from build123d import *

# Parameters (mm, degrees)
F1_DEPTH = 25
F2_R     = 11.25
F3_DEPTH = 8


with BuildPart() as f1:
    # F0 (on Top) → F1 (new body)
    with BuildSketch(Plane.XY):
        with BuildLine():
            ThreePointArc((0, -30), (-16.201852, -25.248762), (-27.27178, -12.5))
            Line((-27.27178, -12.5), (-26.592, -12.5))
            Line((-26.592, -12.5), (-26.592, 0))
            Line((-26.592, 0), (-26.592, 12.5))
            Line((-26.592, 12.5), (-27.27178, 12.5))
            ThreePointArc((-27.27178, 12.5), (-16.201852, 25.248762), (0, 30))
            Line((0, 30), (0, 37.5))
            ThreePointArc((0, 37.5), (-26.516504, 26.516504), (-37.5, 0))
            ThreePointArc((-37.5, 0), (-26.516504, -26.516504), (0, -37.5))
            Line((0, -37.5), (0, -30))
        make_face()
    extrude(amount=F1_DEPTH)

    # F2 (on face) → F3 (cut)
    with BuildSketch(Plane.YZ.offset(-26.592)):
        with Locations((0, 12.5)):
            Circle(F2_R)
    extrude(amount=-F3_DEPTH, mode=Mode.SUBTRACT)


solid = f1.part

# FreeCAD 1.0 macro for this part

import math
import FreeCAD as App
import Part
import Sketcher

doc = App.newDocument("Part")
body = doc.addObject("PartDesign::Body", "Body")

sketch1 = body.newObject("Sketcher::SketchObject", "Sketch")
sketch1.AttachmentSupport = (doc.getObject("XY_Plane"), [""])
sketch1.MapMode = "FlatFace"
sketch1.addGeometry([
    Part.ArcOfCircle(Part.Circle(App.Vector(0, 0, 0), App.Vector(0, 0, 1), 30), math.radians(-155), math.radians(-90)),
    Part.LineSegment(App.Vector(-27.3, -12.5, 0), App.Vector(-26.6, -12.5, 0)),
    Part.LineSegment(App.Vector(-26.6, -12.5, 0), App.Vector(-26.6, 12.5, 0)),
    Part.LineSegment(App.Vector(-26.6, 12.5, 0), App.Vector(-27.3, 12.5, 0)),
    Part.ArcOfCircle(Part.Circle(App.Vector(0, 0, 0), App.Vector(0, 0, 1), 30), math.radians(90), math.radians(155)),
    Part.LineSegment(App.Vector(0, 30, 0), App.Vector(0, 37.5, 0)),
    Part.ArcOfCircle(Part.Circle(App.Vector(0, 0, 0), App.Vector(0, 0, 1), 37.5), math.radians(90), math.radians(180)),
    Part.ArcOfCircle(Part.Circle(App.Vector(0, 0, 0), App.Vector(0, 0, 1), 37.5), math.radians(-180), math.radians(-90)),
    Part.LineSegment(App.Vector(0, -37.5, 0), App.Vector(0, -30, 0)),
], False)
sketch1.addConstraint([
    Sketcher.Constraint("Coincident", 0, 1, 1, 1),
    Sketcher.Constraint("Coincident", 1, 2, 2, 1),
    Sketcher.Constraint("Coincident", 2, 2, 3, 1),
    Sketcher.Constraint("Coincident", 3, 2, 4, 2),
    Sketcher.Constraint("Coincident", 4, 1, 5, 1),
    Sketcher.Constraint("Coincident", 5, 2, 6, 1),
    Sketcher.Constraint("Tangent", 6, 2, 7, 1),
    Sketcher.Constraint("Coincident", 7, 2, 8, 1),
    Sketcher.Constraint("Coincident", 8, 2, 0, 2),
    Sketcher.Constraint("Horizontal", 1),
    Sketcher.Constraint("Vertical", 2),
    Sketcher.Constraint("Horizontal", 3),
    Sketcher.Constraint("Vertical", 5),
    Sketcher.Constraint("Vertical", 8),
    Sketcher.Constraint("Coincident", 0, 3, -1, 1),
    Sketcher.Constraint("Coincident", 4, 3, -1, 1),
    Sketcher.Constraint("Coincident", 6, 3, -1, 1),
    Sketcher.Constraint("Equal", 0, 4),
    Sketcher.Constraint("Equal", 6, 7),
    Sketcher.Constraint("PointOnObject", 4, 1, -2),
    Sketcher.Constraint("PointOnObject", 6, 2, -1),
    Sketcher.Constraint("PointOnObject", 7, 2, -2),
    Sketcher.Constraint("Vertical", 0, 1, 3, 2),
    Sketcher.Constraint("Radius", 0, 30.0),
    Sketcher.Constraint("Radius", 6, 37.500001),
    Sketcher.Constraint("DistanceY", 2, 1, 2, 2, 25.0),
    Sketcher.Constraint("DistanceX", 1, 2, -1, 1, 26.592),
])
pad1 = body.newObject("PartDesign::Pad", "Pad")
pad1.Profile = sketch1
pad1.Length = 25

sketch2 = body.newObject("Sketcher::SketchObject", "Sketch001")
sketch2.AttachmentSupport = (doc.getObject("YZ_Plane"), [""])
sketch2.MapMode = "FlatFace"
sketch2.AttachmentOffset = App.Placement(App.Vector(0, 0, -26.592), App.Rotation())
sketch2.addGeometry(Part.Circle(App.Vector(0, 12, 0), App.Vector(0, 0, 1), 11), False)
sketch2.addConstraint([
    Sketcher.Constraint("PointOnObject", 0, 3, -2),
    Sketcher.Constraint("Diameter", 0, 22.5),
    Sketcher.Constraint("DistanceY", -1, 1, 0, 3, 12.5),
])
pocket1 = body.newObject("PartDesign::Pocket", "Pocket")
pocket1.Profile = sketch2
pocket1.Length = 8

doc.recompute()
